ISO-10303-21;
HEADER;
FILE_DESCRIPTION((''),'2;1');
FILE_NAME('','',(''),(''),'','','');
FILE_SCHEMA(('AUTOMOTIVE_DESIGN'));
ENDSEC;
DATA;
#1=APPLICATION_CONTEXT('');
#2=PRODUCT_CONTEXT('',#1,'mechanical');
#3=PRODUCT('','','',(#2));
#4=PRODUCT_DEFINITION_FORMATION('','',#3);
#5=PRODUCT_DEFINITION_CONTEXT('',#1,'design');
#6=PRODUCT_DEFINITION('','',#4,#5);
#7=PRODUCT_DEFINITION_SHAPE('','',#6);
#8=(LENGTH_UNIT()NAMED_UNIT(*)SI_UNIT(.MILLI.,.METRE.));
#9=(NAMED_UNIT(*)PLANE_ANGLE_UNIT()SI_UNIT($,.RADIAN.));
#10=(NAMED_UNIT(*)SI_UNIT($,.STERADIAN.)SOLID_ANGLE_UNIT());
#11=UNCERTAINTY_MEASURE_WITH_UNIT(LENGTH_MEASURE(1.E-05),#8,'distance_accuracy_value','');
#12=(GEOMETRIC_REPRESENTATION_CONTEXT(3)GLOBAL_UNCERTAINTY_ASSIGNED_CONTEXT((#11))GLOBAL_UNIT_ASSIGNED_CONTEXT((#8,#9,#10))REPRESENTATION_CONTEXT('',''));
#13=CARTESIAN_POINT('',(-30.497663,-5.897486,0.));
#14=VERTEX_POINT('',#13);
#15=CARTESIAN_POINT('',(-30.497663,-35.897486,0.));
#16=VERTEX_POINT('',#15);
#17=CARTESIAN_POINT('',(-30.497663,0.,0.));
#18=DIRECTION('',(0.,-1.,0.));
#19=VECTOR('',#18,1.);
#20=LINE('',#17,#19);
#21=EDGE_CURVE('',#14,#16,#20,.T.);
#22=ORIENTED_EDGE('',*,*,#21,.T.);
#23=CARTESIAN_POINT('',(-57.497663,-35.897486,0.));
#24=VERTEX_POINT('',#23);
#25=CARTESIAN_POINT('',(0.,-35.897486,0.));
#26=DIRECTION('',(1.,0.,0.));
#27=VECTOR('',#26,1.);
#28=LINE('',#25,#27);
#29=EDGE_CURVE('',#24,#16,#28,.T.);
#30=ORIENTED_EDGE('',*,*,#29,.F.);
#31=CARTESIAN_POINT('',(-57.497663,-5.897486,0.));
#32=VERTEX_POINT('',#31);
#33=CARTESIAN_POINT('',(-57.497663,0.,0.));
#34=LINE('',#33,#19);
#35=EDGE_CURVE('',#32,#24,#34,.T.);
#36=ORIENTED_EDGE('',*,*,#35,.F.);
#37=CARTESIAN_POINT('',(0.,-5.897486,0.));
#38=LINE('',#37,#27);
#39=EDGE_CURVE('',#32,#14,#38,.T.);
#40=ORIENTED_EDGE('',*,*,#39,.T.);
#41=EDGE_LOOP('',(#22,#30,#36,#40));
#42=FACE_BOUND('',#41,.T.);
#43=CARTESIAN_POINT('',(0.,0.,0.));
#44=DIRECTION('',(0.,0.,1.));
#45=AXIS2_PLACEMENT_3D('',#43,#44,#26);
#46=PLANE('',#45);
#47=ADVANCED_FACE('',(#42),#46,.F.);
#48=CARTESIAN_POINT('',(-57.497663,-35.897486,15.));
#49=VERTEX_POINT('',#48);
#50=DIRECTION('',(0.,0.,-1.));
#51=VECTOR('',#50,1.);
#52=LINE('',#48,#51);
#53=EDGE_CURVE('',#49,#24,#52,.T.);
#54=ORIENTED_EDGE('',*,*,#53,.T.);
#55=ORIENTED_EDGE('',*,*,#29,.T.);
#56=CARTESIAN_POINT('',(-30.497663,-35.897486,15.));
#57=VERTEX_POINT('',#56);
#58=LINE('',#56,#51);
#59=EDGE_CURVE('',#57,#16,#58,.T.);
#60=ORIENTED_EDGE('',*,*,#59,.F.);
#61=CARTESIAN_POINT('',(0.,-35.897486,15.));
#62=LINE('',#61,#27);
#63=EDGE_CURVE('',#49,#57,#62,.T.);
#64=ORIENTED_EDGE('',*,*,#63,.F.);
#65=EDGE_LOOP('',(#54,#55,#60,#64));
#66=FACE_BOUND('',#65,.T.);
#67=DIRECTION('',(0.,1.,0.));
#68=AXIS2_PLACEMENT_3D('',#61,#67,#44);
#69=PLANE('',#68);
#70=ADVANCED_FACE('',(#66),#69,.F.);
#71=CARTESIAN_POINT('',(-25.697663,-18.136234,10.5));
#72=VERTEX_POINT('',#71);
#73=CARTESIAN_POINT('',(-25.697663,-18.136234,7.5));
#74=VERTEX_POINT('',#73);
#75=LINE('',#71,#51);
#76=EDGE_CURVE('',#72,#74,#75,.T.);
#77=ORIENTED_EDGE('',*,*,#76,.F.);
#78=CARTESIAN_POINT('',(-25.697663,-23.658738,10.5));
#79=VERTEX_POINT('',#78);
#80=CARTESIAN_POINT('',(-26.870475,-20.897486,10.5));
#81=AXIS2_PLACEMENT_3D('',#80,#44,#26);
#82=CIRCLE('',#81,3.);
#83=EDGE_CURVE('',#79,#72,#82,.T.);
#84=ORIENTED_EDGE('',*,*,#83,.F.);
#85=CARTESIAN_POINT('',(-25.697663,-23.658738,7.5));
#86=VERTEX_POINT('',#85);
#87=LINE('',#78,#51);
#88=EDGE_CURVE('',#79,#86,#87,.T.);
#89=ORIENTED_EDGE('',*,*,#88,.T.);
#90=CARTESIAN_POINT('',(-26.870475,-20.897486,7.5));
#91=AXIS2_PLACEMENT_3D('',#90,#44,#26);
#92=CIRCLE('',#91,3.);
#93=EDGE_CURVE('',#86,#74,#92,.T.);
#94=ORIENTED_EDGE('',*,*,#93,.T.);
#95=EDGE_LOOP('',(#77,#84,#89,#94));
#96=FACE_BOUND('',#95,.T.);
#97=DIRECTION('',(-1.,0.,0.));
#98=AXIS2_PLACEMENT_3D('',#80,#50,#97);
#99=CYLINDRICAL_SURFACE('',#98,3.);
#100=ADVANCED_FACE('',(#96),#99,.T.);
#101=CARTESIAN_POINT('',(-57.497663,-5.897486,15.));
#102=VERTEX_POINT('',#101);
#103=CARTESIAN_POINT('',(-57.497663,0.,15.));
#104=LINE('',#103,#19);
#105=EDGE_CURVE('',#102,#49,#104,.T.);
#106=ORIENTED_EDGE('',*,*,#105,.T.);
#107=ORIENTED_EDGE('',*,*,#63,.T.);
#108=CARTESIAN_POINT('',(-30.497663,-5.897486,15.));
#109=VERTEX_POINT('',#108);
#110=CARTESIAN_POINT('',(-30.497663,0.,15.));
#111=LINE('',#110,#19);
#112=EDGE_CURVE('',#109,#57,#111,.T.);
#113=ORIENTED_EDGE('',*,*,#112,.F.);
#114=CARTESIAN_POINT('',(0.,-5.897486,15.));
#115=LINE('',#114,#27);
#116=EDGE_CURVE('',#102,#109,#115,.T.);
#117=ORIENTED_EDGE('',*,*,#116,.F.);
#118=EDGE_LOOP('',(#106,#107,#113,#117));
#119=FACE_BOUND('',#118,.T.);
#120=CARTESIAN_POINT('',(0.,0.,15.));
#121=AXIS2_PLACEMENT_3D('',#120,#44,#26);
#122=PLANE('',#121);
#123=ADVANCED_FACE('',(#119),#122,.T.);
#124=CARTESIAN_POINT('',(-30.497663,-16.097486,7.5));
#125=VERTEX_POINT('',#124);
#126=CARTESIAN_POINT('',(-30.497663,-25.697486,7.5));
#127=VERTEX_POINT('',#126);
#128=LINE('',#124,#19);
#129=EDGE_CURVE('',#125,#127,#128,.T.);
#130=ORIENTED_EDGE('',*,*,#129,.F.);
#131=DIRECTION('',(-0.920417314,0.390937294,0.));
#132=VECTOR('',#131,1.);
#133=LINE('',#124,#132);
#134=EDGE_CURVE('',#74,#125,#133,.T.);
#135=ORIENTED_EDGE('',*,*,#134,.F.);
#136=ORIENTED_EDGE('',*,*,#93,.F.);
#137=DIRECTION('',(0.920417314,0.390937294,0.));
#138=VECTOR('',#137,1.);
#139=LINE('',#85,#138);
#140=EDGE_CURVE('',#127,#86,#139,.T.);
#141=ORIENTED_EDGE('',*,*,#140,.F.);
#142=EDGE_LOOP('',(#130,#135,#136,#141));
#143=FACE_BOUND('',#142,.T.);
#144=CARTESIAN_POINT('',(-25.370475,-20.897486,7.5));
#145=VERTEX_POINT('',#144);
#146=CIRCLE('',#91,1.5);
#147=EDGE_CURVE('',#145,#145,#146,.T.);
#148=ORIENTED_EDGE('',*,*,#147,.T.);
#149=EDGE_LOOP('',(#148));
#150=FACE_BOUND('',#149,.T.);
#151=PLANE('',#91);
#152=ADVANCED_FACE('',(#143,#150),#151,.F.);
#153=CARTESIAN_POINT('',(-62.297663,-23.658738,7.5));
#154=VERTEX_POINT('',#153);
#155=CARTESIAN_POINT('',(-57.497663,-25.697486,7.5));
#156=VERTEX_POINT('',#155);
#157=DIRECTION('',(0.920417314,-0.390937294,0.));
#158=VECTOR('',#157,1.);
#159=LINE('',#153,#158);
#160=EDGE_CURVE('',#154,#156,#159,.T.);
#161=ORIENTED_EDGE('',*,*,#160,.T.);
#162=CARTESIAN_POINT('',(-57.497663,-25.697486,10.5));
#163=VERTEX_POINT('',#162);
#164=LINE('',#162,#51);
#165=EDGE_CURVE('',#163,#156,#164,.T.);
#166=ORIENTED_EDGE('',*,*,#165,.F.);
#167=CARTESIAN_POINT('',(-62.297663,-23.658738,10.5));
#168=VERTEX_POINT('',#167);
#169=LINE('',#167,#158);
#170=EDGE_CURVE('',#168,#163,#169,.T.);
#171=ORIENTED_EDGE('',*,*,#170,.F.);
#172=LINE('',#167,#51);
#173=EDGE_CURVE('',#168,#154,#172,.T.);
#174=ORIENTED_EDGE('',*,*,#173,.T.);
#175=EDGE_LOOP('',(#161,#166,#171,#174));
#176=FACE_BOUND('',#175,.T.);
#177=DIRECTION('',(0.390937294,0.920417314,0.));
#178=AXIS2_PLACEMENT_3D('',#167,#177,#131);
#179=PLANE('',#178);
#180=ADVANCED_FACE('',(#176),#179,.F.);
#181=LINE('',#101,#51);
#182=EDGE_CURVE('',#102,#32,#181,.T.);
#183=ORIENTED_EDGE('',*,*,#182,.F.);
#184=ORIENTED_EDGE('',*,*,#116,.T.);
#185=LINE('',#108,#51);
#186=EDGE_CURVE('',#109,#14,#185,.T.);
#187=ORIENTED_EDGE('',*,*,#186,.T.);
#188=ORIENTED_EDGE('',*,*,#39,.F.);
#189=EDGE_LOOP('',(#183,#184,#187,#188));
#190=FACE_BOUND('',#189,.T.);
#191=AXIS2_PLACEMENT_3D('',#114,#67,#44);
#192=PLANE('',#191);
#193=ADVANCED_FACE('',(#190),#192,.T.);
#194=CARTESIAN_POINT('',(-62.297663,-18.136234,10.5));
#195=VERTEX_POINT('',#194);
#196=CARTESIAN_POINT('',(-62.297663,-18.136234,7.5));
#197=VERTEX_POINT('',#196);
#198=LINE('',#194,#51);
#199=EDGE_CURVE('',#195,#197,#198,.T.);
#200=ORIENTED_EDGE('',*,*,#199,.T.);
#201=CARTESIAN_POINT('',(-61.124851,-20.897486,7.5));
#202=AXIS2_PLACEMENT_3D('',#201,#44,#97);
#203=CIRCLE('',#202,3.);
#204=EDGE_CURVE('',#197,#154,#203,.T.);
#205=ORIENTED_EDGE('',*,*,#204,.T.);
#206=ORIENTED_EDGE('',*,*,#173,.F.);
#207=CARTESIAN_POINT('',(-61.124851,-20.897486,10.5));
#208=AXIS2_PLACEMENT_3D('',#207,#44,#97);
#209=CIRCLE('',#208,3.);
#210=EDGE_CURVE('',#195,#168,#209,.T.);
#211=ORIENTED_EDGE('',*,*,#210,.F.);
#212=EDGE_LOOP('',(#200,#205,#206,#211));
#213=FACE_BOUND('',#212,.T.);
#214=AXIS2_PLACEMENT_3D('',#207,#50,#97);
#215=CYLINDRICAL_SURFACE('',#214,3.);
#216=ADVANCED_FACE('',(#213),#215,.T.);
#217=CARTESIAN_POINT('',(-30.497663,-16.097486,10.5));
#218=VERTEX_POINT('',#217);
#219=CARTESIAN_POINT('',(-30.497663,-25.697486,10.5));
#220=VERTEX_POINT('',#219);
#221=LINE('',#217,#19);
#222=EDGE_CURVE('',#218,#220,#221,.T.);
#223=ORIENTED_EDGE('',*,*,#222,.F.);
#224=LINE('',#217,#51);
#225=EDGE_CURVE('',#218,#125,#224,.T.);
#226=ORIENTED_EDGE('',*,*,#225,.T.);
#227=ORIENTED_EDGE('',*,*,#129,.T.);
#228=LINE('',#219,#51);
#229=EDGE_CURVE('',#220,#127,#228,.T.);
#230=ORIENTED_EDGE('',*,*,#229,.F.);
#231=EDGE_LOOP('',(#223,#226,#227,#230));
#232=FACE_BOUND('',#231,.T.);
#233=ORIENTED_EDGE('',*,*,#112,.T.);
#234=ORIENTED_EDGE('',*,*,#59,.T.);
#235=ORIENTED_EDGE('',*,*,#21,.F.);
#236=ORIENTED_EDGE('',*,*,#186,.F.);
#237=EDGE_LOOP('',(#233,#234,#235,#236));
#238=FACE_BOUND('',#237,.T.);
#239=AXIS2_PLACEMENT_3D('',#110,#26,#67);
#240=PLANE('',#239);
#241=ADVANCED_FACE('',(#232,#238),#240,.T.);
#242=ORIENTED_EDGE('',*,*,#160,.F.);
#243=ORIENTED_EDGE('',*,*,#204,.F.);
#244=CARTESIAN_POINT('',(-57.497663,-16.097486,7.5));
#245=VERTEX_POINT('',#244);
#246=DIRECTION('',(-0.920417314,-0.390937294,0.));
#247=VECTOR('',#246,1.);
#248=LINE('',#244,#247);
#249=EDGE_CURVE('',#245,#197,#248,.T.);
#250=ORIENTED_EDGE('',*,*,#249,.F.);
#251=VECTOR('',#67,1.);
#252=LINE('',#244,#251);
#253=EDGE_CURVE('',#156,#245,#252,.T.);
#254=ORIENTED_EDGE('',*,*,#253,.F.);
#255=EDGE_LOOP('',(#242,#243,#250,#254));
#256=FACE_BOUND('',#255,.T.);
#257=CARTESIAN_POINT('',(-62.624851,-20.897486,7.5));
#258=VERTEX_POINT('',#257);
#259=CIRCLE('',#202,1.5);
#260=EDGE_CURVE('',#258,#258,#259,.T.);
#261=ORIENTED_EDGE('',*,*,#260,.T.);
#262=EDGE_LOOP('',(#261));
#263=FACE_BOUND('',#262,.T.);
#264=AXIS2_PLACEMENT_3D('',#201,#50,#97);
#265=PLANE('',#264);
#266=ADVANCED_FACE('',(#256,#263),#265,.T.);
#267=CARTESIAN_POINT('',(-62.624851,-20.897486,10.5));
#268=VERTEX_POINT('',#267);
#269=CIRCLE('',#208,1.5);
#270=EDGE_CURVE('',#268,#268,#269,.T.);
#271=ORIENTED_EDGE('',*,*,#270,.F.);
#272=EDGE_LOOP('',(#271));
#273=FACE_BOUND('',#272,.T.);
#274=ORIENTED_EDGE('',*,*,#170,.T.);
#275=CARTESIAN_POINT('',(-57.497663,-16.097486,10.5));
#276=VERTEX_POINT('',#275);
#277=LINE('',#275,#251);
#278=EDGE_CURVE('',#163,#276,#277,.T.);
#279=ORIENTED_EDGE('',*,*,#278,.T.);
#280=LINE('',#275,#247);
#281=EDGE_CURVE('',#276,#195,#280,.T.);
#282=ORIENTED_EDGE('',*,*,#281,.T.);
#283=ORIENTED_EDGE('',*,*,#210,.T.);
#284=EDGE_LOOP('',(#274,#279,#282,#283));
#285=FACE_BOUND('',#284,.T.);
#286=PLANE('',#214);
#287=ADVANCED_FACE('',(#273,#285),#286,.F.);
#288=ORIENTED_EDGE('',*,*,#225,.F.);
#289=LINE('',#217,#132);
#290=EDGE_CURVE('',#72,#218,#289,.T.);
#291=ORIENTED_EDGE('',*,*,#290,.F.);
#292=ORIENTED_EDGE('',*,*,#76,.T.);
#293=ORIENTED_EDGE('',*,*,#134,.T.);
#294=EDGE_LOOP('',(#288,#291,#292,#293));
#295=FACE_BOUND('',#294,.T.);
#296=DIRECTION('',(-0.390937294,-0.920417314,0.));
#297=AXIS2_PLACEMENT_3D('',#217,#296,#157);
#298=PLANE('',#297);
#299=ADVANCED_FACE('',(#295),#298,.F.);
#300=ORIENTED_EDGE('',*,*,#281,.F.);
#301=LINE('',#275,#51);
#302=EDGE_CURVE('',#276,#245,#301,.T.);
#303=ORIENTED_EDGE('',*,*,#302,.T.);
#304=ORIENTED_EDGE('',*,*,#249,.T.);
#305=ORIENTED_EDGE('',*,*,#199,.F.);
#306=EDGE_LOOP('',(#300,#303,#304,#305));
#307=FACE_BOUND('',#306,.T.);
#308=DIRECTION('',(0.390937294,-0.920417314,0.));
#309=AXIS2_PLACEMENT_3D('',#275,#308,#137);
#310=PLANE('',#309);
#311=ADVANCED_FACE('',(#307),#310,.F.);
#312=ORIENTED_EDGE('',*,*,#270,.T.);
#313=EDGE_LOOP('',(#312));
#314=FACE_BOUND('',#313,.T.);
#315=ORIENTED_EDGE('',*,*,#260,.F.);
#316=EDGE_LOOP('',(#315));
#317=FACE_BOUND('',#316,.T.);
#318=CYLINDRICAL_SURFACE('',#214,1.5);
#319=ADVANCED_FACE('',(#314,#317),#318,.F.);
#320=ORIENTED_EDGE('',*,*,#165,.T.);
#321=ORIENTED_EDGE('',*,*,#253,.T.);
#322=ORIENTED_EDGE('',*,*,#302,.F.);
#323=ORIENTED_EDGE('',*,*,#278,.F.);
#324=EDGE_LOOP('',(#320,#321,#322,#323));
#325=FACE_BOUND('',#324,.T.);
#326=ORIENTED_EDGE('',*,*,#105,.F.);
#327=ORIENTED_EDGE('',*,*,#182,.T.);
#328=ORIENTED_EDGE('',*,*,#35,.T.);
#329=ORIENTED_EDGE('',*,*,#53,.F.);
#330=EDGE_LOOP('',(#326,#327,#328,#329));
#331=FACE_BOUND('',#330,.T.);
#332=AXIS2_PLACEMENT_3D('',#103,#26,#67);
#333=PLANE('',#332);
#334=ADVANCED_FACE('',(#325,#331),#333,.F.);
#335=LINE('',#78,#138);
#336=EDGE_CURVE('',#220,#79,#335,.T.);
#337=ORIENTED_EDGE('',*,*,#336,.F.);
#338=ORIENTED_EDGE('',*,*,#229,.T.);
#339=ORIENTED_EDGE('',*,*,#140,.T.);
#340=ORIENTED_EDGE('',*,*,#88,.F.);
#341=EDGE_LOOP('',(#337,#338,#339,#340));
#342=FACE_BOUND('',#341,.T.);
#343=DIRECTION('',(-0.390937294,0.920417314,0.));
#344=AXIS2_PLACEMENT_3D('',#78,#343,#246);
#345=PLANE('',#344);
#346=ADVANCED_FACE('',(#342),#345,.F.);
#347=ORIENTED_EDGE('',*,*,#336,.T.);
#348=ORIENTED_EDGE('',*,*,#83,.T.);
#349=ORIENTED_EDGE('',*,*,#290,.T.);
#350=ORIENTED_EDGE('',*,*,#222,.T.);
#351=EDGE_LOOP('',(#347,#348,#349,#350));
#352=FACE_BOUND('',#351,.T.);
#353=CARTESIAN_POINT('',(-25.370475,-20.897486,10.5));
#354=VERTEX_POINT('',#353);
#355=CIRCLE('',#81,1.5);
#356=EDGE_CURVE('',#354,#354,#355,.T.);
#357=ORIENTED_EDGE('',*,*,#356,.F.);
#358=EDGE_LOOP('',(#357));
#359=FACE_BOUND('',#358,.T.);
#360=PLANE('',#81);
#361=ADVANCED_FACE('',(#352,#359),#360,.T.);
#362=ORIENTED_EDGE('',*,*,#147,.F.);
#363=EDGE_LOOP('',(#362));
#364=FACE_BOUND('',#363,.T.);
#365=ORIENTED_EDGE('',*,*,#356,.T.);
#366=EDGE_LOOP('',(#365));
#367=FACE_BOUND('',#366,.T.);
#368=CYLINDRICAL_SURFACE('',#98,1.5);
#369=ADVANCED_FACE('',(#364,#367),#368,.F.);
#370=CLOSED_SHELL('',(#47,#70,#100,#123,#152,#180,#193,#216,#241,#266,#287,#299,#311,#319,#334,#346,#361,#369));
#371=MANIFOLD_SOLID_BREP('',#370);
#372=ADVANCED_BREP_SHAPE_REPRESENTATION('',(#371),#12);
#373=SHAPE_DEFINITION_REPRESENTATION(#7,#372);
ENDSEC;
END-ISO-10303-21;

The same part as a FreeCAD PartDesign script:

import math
import FreeCAD as App
import Part
import Sketcher
from FreeCAD import Vector
Q = App.Units.Quantity

doc = App.newDocument("Part")
params = doc.addObject("Spreadsheet::Sheet", "Params")
for row, (alias, value) in enumerate([
    ("sketch1_width", "27 mm"),
    ("sketch1_height", "30 mm"),
    ("pad1_length", "15 mm"),
    ("sketch2_diameter", "3 mm"),
    ("sketch2_radius", "3 mm"),
    ("sketch2_height", "9.6 mm"),
    ("pad2_length", "3 mm"),
], start=1):
    params.set(f"A{row}", alias)
    params.set(f"B{row}", "=" + value)
    params.setAlias(f"B{row}", alias)

body = doc.addObject("PartDesign::Body", "Body")

sketch1 = body.newObject("Sketcher::SketchObject", "Sketch")
sketch1.AttachmentSupport = (doc.getObject("XY_Plane"), [""])
sketch1.MapMode = "FlatFace"
sketch1.addGeometry([
    Part.LineSegment(Vector(-57.497663, -5.897486, 0), Vector(-57.497663, -35.897486, 0)),
    Part.LineSegment(Vector(-57.497663, -35.897486, 0), Vector(-30.497663, -35.897486, 0)),
    Part.LineSegment(Vector(-30.497663, -35.897486, 0), Vector(-30.497663, -5.897486, 0)),
    Part.LineSegment(Vector(-30.497663, -5.897486, 0), Vector(-57.497663, -5.897486, 0)),
], False)
sketch1.addConstraint([
    Sketcher.Constraint("Coincident", 0, 2, 1, 1),
    Sketcher.Constraint("Coincident", 1, 2, 2, 1),
    Sketcher.Constraint("Coincident", 2, 2, 3, 1),
    Sketcher.Constraint("Coincident", 3, 2, 0, 1),
    Sketcher.Constraint("Vertical", 0),
    Sketcher.Constraint("Horizontal", 1),
    Sketcher.Constraint("Vertical", 2),
    Sketcher.Constraint("Horizontal", 3),
    Sketcher.Constraint("DistanceX", 1, 1, 1, 2, Q("27 mm")),
    Sketcher.Constraint("DistanceY", 0, 2, 0, 1, Q("30 mm")),
    Sketcher.Constraint("DistanceX", 0, 2, -1, 1, Q("57.497663 mm")),
    Sketcher.Constraint("DistanceY", 0, 2, -1, 1, Q("35.897486 mm")),
])
sketch1.setExpression("Constraints[8]", "Params.sketch1_width")
sketch1.setExpression("Constraints[9]", "Params.sketch1_height")
pad1 = body.newObject("PartDesign::Pad", "Pad")
pad1.Profile = sketch1
pad1.setExpression("Length", "Params.pad1_length")

sketch2 = body.newObject("Sketcher::SketchObject", "Sketch001")
sketch2.AttachmentSupport = (doc.getObject("XY_Plane"), [""])
sketch2.MapMode = "FlatFace"
sketch2.AttachmentOffset = App.Placement(Vector(0, 0, 7.5), App.Rotation())
sketch2.addGeometry([
    Part.LineSegment(Vector(-25.697663, -18.136234, 0), Vector(-30.497663, -16.097486, 0)),
    Part.LineSegment(Vector(-30.497663, -16.097486, 0), Vector(-30.497663, -25.697486, 0)),
    Part.LineSegment(Vector(-30.497663, -25.697486, 0), Vector(-25.697663, -23.658738, 0)),
    Part.ArcOfCircle(Part.Circle(Vector(-26.870475, -20.897486, 0), Vector(0, 0, 1), 3), math.radians(-66.987167), math.radians(66.987167)),
    Part.Circle(Vector(-26.870475, -20.897486, 0), Vector(0, 0, 1), 1.5),
    Part.LineSegment(Vector(-57.497663, -25.697486, 0), Vector(-57.497663, -16.097486, 0)),
    Part.LineSegment(Vector(-57.497663, -16.097486, 0), Vector(-62.297663, -18.136234, 0)),
    Part.ArcOfCircle(Part.Circle(Vector(-61.124851, -20.897486, 0), Vector(0, 0, 1), 3), math.radians(113.012833), math.radians(246.987167)),
    Part.LineSegment(Vector(-62.297663, -23.658738, 0), Vector(-57.497663, -25.697486, 0)),
    Part.Circle(Vector(-61.124851, -20.897486, 0), Vector(0, 0, 1), 1.5),
], False)
sketch2.addConstraint([
    Sketcher.Constraint("Coincident", 0, 2, 1, 1),
    Sketcher.Constraint("Coincident", 1, 2, 2, 1),
    Sketcher.Constraint("Tangent", 2, 2, 3, 1),
    Sketcher.Constraint("Tangent", 3, 2, 0, 1),
    Sketcher.Constraint("Coincident", 5, 2, 6, 1),
    Sketcher.Constraint("Tangent", 6, 2, 7, 1),
    Sketcher.Constraint("Tangent", 7, 2, 8, 1),
    Sketcher.Constraint("Coincident", 8, 2, 5, 1),
    Sketcher.Constraint("Vertical", 1),
    Sketcher.Constraint("Vertical", 5),
    Sketcher.Constraint("Coincident", 4, 3, 3, 3),
    Sketcher.Constraint("Coincident", 9, 3, 7, 3),
    Sketcher.Constraint("Equal", 3, 7),
    Sketcher.Constraint("Equal", 4, 9),
    Sketcher.Constraint("Parallel", 2, 6),
    Sketcher.Constraint("Parallel", 0, 8),
    Sketcher.Constraint("Horizontal", 4, 3, 7, 3),
    Sketcher.Constraint("Horizontal", 0, 2, 5, 2),
    Sketcher.Constraint("Horizontal", 3, 2, 6, 2),
    Sketcher.Constraint("Diameter", 4, Q("3 mm")),
    Sketcher.Constraint("Radius", 3, Q("3 mm")),
    Sketcher.Constraint("DistanceY", 1, 2, 1, 1, Q("9.6 mm")),
    Sketcher.Constraint("DistanceX", 5, 2, 0, 2, Q("27 mm")),
    Sketcher.Constraint("DistanceX", 1, 2, 2, 2, Q("4.8 mm")),
    Sketcher.Constraint("DistanceX", 7, 3, -1, 1, Q("61.124851 mm")),
    Sketcher.Constraint("DistanceY", 2, 2, -1, 1, Q("23.658738 mm")),
])
sketch2.setExpression("Constraints[19]", "Params.sketch2_diameter")
sketch2.setExpression("Constraints[20]", "Params.sketch2_radius")
sketch2.setExpression("Constraints[21]", "Params.sketch2_height")
pad2 = body.newObject("PartDesign::Pad", "Pad001")
pad2.Profile = sketch2
pad2.setExpression("Length", "Params.pad2_length")

doc.recompute()
